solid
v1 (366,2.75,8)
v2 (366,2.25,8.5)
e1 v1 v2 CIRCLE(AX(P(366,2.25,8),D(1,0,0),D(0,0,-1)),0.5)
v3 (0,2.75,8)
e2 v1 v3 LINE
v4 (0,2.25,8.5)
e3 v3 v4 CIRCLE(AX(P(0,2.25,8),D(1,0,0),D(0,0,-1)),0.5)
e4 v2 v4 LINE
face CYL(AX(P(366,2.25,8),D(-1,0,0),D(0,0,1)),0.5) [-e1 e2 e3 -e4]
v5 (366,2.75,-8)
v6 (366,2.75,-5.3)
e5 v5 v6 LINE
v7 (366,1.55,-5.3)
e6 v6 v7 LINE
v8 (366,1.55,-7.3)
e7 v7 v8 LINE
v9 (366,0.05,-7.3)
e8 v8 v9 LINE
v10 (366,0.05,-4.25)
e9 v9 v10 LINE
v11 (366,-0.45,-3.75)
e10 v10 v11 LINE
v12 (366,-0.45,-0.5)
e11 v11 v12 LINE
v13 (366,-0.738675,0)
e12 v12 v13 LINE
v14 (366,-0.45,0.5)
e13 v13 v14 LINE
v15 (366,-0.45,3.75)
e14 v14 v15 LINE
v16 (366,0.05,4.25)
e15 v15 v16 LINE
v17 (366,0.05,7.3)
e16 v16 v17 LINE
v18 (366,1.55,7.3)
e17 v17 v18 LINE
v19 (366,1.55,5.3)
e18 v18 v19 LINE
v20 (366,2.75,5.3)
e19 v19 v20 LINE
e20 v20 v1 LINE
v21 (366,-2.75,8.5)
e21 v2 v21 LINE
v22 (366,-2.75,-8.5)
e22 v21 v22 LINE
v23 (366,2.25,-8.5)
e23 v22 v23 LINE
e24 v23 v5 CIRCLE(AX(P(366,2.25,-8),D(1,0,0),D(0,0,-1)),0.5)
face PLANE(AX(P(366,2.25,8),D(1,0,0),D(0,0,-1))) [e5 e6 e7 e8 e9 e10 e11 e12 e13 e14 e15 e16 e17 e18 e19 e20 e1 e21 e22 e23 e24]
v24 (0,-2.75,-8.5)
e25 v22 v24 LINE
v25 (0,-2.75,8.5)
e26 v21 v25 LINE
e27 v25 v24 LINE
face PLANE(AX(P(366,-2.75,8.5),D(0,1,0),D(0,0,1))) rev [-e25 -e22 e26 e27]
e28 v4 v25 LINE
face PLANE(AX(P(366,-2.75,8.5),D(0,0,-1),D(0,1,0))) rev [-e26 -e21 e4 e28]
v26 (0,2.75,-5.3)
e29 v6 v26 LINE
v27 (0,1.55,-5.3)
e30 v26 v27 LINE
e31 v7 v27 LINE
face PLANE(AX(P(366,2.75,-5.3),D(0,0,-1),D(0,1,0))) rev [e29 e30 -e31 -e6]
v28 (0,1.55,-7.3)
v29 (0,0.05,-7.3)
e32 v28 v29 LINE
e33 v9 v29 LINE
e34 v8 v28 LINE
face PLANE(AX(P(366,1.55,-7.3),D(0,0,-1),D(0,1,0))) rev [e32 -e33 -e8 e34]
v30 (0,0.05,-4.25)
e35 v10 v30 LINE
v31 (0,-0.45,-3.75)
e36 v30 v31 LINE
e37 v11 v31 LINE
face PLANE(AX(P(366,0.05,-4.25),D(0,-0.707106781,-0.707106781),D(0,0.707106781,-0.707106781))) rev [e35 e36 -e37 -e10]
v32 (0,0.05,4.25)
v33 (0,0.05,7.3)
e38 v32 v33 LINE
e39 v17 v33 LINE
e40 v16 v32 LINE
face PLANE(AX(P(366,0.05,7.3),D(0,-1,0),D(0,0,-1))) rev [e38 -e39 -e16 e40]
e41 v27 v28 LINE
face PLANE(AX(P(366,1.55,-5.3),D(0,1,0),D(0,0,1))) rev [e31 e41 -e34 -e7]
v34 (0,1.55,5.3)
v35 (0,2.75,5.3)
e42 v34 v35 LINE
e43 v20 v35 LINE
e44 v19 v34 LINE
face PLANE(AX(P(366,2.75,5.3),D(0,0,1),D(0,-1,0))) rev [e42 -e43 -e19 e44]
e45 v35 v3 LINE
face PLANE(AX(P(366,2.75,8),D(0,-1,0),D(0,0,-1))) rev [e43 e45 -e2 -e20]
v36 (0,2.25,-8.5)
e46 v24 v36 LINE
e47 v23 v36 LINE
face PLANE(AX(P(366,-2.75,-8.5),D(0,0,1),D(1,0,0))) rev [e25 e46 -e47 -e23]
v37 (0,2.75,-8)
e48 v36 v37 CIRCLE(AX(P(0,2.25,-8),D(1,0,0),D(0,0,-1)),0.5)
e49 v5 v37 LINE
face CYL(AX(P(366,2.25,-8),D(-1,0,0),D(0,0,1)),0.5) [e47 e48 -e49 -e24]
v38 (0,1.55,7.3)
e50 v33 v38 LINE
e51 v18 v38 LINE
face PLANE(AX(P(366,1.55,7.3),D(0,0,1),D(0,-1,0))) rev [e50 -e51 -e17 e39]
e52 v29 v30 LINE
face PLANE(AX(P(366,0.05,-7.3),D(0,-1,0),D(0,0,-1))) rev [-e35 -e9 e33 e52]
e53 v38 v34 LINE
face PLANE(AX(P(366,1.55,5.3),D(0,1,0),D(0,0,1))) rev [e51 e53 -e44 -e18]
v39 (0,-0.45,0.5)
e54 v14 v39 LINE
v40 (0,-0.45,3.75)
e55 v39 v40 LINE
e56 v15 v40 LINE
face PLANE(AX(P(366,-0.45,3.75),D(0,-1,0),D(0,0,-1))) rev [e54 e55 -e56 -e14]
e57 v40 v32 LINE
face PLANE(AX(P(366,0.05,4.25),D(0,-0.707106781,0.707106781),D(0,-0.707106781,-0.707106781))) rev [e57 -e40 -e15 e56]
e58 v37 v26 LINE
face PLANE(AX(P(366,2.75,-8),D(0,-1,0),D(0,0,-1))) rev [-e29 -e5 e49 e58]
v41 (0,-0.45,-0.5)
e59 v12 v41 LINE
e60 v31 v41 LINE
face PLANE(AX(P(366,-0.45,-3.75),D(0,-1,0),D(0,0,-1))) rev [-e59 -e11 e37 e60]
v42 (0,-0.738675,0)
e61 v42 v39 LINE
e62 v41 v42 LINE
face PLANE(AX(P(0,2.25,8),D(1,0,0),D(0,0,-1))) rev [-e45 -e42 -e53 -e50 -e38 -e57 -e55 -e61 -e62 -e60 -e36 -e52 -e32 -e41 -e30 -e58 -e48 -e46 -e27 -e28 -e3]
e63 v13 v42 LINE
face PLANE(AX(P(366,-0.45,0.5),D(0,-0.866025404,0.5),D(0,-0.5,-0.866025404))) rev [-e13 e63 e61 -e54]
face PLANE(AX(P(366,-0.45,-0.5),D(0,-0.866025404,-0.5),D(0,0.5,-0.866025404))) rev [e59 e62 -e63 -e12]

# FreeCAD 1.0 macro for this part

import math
import FreeCAD as App
import Part
import Sketcher
from FreeCAD import Vector
Q = App.Units.Quantity

doc = App.newDocument("Part")
params = doc.addObject("Spreadsheet::Sheet", "Params")
for row, (alias, value) in enumerate([
    ("sketch1_radius", "0.5 mm"),
    ("sketch1_width", "5 mm"),
    ("sketch1_height", "17 mm"),
    ("sketch1_height2", "2 mm"),
    ("sketch1_width2", "1.2 mm"),
    ("pad1_length", "366 mm"),
], start=1):
    params.set(f"A{row}", alias)
    params.set(f"B{row}", "=" + value)
    params.setAlias(f"B{row}", alias)

body = doc.addObject("PartDesign::Body", "Body")

sketch1 = doc.addObject("Sketcher::SketchObject", "Sketch")
body.addObject(sketch1)
sketch1.AttachmentSupport = (doc.YZ_Plane, [""])
sketch1.MapMode = "FlatFace"
sketch1.addGeometry([
    Part.LineSegment(Vector(-2.75, 8.5, 0), Vector(-2.75, -8.5, 0)),
    Part.LineSegment(Vector(-2.75, -8.5, 0), Vector(2.25, -8.5, 0)),
    Part.ArcOfCircle(Part.Circle(Vector(2.25, -8, 0), Vector(0, 0, 1), 0.5), math.radians(-90), math.radians(0)),
    Part.LineSegment(Vector(2.75, -8, 0), Vector(2.75, -5.3, 0)),
    Part.LineSegment(Vector(2.75, -5.3, 0), Vector(1.55, -5.3, 0)),
    Part.LineSegment(Vector(1.55, -5.3, 0), Vector(1.55, -7.3, 0)),
    Part.LineSegment(Vector(1.55, -7.3, 0), Vector(0.05, -7.3, 0)),
    Part.LineSegment(Vector(0.05, -7.3, 0), Vector(0.05, -4.25, 0)),
    Part.LineSegment(Vector(0.05, -4.25, 0), Vector(-0.45, -3.75, 0)),
    Part.LineSegment(Vector(-0.45, -3.75, 0), Vector(-0.45, -0.5, 0)),
    Part.LineSegment(Vector(-0.45, -0.5, 0), Vector(-0.74, 0, 0)),
    Part.LineSegment(Vector(-0.74, 0, 0), Vector(-0.45, 0.5, 0)),
    Part.LineSegment(Vector(-0.45, 0.5, 0), Vector(-0.45, 3.75, 0)),
    Part.LineSegment(Vector(-0.45, 3.75, 0), Vector(0.05, 4.25, 0)),
    Part.LineSegment(Vector(0.05, 4.25, 0), Vector(0.05, 7.3, 0)),
    Part.LineSegment(Vector(0.05, 7.3, 0), Vector(1.55, 7.3, 0)),
    Part.LineSegment(Vector(1.55, 7.3, 0), Vector(1.55, 5.3, 0)),
    Part.LineSegment(Vector(1.55, 5.3, 0), Vector(2.75, 5.3, 0)),
    Part.LineSegment(Vector(2.75, 5.3, 0), Vector(2.75, 8, 0)),
    Part.ArcOfCircle(Part.Circle(Vector(2.25, 8, 0), Vector(0, 0, 1), 0.5), math.radians(0), math.radians(90)),
    Part.LineSegment(Vector(2.25, 8.5, 0), Vector(-2.75, 8.5, 0)),
], False)
sketch1.addConstraint([
    Sketcher.Constraint("Coincident", 0, 2, 1, 1),
    Sketcher.Constraint("Tangent", 1, 2, 2, 1),
    Sketcher.Constraint("Tangent", 2, 2, 3, 1),
    Sketcher.Constraint("Coincident", 3, 2, 4, 1),
    Sketcher.Constraint("Coincident", 4, 2, 5, 1),
    Sketcher.Constraint("Coincident", 5, 2, 6, 1),
    Sketcher.Constraint("Coincident", 6, 2, 7, 1),
    Sketcher.Constraint("Coincident", 7, 2, 8, 1),
    Sketcher.Constraint("Coincident", 8, 2, 9, 1),
    Sketcher.Constraint("Coincident", 9, 2, 10, 1),
    Sketcher.Constraint("Coincident", 10, 2, 11, 1),
    Sketcher.Constraint("Coincident", 11, 2, 12, 1),
    Sketcher.Constraint("Coincident", 12, 2, 13, 1),
    Sketcher.Constraint("Coincident", 13, 2, 14, 1),
    Sketcher.Constraint("Coincident", 14, 2, 15, 1),
    Sketcher.Constraint("Coincident", 15, 2, 16, 1),
    Sketcher.Constraint("Coincident", 16, 2, 17, 1),
    Sketcher.Constraint("Coincident", 17, 2, 18, 1),
    Sketcher.Constraint("Tangent", 18, 2, 19, 1),
    Sketcher.Constraint("Tangent", 19, 2, 20, 1),
    Sketcher.Constraint("Coincident", 20, 2, 0, 1),
    Sketcher.Constraint("Vertical", 0),
    Sketcher.Constraint("Horizontal", 1),
    Sketcher.Constraint("Vertical", 3),
    Sketcher.Constraint("Horizontal", 4),
    Sketcher.Constraint("Vertical", 5),
    Sketcher.Constraint("Horizontal", 6),
    Sketcher.Constraint("Vertical", 7),
    Sketcher.Constraint("Vertical", 9),
    Sketcher.Constraint("Vertical", 12),
    Sketcher.Constraint("Vertical", 14),
    Sketcher.Constraint("Horizontal", 15),
    Sketcher.Constraint("Vertical", 16),
    Sketcher.Constraint("Horizontal", 17),
    Sketcher.Constraint("Vertical", 18),
    Sketcher.Constraint("Horizontal", 20),
    Sketcher.Constraint("Equal", 2, 19),
    Sketcher.Constraint("Symmetric", 2, 3, 19, 3, -1),
    Sketcher.Constraint("Symmetric", 9, 2, 11, 2, -1),
    Sketcher.Constraint("Symmetric", 7, 2, 13, 2, -1),
    Sketcher.Constraint("Symmetric", 5, 2, 15, 2, -1),
    Sketcher.Constraint("PointOnObject", 10, 2, -1),
    Sketcher.Constraint("Perpendicular", 8, 13),
    Sketcher.Constraint("Equal", 9, 12),
    Sketcher.Constraint("Equal", 5, 16),
    Sketcher.Constraint("Radius", 2, 0.5),
    Sketcher.Constraint("DistanceX", 1, 1, 1, 2, 5.0),
    Sketcher.Constraint("DistanceY", 0, 2, 0, 1, 17.0),
    Sketcher.Constraint("DistanceY", 5, 2, 5, 1, 2.0),
    Sketcher.Constraint("Angle", 10, Q("120 deg")),
    Sketcher.Constraint("DistanceX", 4, 2, 4, 1, 1.2),
    Sketcher.Constraint("DistanceX", 6, 2, 6, 1, 1.5),
    Sketcher.Constraint("DistanceY", 3, 1, 3, 2, 2.7),
    Sketcher.Constraint("DistanceX", 8, 2, 4, 2, 2.0),
    Sketcher.Constraint("DistanceY", 9, 2, 11, 2, 1.0),
    Sketcher.Constraint("DistanceY", 7, 1, 7, 2, 3.05),
    Sketcher.Constraint("DistanceX", -1, 1, 2, 3, 2.25),
])
sketch1.setExpression("Constraints[45]", "Params.sketch1_radius")
sketch1.setExpression("Constraints[46]", "Params.sketch1_width")
sketch1.setExpression("Constraints[47]", "Params.sketch1_height")
sketch1.setExpression("Constraints[48]", "Params.sketch1_height2")
sketch1.setExpression("Constraints[50]", "Params.sketch1_width2")
pad1 = doc.addObject("PartDesign::Pad", "Pad")
body.addObject(pad1)
pad1.Profile = sketch1
pad1.setExpression("Length", "Params.pad1_length")

doc.recompute()
